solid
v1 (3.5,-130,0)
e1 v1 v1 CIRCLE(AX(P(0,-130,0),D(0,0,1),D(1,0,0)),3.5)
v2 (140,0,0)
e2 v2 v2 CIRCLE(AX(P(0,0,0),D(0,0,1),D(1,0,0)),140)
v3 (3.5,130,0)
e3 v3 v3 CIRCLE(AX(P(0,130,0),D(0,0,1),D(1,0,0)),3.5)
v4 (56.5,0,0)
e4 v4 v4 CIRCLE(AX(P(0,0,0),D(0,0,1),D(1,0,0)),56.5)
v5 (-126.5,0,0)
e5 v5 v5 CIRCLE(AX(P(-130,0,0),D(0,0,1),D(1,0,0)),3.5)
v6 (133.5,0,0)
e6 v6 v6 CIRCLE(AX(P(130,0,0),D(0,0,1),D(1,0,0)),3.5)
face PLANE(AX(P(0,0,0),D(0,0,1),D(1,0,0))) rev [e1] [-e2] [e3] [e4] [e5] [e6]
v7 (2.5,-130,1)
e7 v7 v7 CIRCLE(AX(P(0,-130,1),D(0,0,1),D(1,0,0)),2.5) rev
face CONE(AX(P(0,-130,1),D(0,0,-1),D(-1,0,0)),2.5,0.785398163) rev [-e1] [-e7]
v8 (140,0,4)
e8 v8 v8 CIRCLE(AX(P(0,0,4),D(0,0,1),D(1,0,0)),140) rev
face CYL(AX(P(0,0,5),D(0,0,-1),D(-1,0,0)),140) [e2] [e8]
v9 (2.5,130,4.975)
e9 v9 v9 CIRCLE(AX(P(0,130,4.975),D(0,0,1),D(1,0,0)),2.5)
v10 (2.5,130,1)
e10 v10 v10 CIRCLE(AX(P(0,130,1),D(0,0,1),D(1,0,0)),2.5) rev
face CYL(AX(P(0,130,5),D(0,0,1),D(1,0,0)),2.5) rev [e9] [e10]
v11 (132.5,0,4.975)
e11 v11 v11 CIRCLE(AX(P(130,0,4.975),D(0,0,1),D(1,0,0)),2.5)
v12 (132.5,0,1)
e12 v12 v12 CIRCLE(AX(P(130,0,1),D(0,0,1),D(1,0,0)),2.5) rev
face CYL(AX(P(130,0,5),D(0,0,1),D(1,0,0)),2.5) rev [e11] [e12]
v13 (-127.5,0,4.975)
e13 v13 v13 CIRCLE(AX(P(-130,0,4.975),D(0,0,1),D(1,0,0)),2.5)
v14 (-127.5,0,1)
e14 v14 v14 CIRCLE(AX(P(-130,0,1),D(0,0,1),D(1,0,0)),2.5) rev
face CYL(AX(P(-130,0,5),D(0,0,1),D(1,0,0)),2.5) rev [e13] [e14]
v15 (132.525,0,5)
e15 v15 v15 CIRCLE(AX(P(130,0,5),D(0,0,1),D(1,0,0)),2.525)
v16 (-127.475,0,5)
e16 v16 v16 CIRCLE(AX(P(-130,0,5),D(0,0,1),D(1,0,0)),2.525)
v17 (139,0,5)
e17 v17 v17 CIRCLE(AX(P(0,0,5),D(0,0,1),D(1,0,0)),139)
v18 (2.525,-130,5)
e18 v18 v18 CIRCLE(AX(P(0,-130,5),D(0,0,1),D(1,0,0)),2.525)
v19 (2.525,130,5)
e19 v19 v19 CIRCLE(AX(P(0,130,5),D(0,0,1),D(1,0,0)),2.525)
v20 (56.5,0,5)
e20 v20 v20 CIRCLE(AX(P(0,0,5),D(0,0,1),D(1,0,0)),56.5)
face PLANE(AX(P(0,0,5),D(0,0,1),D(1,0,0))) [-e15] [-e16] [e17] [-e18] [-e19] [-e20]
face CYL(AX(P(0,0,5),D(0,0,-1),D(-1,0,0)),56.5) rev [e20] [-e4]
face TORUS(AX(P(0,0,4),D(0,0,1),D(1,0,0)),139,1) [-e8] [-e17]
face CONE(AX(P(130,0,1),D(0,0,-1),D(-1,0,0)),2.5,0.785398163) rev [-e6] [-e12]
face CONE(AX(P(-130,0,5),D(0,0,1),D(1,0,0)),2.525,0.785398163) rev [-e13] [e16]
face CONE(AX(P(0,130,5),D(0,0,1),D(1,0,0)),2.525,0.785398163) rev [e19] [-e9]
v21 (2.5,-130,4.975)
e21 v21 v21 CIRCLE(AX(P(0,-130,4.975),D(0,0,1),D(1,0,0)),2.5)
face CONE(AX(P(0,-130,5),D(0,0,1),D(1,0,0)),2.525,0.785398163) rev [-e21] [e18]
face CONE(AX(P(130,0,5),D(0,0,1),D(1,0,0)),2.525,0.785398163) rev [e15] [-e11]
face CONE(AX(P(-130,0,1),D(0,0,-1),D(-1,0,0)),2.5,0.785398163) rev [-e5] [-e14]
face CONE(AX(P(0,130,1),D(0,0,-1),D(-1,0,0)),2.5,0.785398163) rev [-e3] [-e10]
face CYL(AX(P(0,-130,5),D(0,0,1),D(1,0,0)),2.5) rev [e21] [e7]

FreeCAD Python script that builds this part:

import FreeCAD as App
import Part
import Sketcher

V = App.Vector


def edges_at(feature, points):
    """Names of the edges that pass closest to the given points."""
    edges = feature.Shape.Edges
    near = lambda p: min(range(len(edges)), key=lambda i: edges[i].distToShape(Part.Vertex(*p))[0])
    return sorted({f"Edge{near(p) + 1}" for p in points})

doc = App.newDocument("Part")
body = doc.addObject("PartDesign::Body", "Body")

sketch1 = body.newObject("Sketcher::SketchObject", "Sketch")
sketch1.AttachmentSupport = (doc.getObject("XY_Plane"), [""])
sketch1.MapMode = "FlatFace"
sketch1.addGeometry([
    Part.Circle(V(0, 0, 0), V(0, 0, 1), 140),
    Part.Circle(V(0, 0, 0), V(0, 0, 1), 56),
], False)
sketch1.addConstraint([
    Sketcher.Constraint("Coincident", 0, 3, -1, 1),
    Sketcher.Constraint("Coincident", 1, 3, -1, 1),
    Sketcher.Constraint("Diameter", 0, 280.0),
    Sketcher.Constraint("Diameter", 1, 113.0),
])
pad1 = body.newObject("PartDesign::Pad", "Pad")
pad1.Profile = sketch1
pad1.Length = 5

sketch2 = body.newObject("Sketcher::SketchObject", "Sketch001")
sketch2.AttachmentSupport = (doc.getObject("XY_Plane"), [""])
sketch2.MapMode = "FlatFace"
sketch2.AttachmentOffset = App.Placement(V(0, 0, 5), App.Rotation())
sketch2.addGeometry([
    Part.Circle(V(0, 130, 0), V(0, 0, 1), 2.5),
    Part.Circle(V(0, -130, 0), V(0, 0, 1), 2.5),
    Part.Circle(V(130, 0, 0), V(0, 0, 1), 2.5),
    Part.Circle(V(-130, 0, 0), V(0, 0, 1), 2.5),
], False)
sketch2.addConstraint([
    Sketcher.Constraint("Equal", 0, 1),
    Sketcher.Constraint("Equal", 1, 2),
    Sketcher.Constraint("Equal", 2, 3),
    Sketcher.Constraint("Symmetric", 0, 3, 1, 3, -1, 1),
    Sketcher.Constraint("Symmetric", 2, 3, 3, 3, -1, 1),
    Sketcher.Constraint("PointOnObject", 0, 3, -2),
    Sketcher.Constraint("PointOnObject", 2, 3, -1),
    Sketcher.Constraint("Diameter", 0, 5.0),
    Sketcher.Constraint("DistanceY", -1, 1, 0, 3, 130.0),
    Sketcher.Constraint("DistanceX", -1, 1, 2, 3, 130.0),
])
doc.recompute()
hole = body.newObject("PartDesign::Hole", "Hole")
hole.Profile = sketch2
hole.ThreadType = "None"
hole.Diameter = 5
hole.DepthType = "ThroughAll"
hole.HoleCutType = "Countersink"
hole.HoleCutDiameter = 5.05
hole.HoleCutCountersinkAngle = 90
doc.recompute()

fillet = body.newObject("PartDesign::Fillet", "Fillet")
fillet.Base = (hole, edges_at(hole, [(-140, 0, 5)]))
fillet.Radius = 1
doc.recompute()

chamfer = body.newObject("PartDesign::Chamfer", "Chamfer")
chamfer.Base = (fillet, edges_at(fillet, [
    (-127.5, 0, 0),
    (132.5, 0, 0),
    (2.5, -130, 0),
    (2.5, 130, 0),
]))
chamfer.Size = 1

doc.recompute()
